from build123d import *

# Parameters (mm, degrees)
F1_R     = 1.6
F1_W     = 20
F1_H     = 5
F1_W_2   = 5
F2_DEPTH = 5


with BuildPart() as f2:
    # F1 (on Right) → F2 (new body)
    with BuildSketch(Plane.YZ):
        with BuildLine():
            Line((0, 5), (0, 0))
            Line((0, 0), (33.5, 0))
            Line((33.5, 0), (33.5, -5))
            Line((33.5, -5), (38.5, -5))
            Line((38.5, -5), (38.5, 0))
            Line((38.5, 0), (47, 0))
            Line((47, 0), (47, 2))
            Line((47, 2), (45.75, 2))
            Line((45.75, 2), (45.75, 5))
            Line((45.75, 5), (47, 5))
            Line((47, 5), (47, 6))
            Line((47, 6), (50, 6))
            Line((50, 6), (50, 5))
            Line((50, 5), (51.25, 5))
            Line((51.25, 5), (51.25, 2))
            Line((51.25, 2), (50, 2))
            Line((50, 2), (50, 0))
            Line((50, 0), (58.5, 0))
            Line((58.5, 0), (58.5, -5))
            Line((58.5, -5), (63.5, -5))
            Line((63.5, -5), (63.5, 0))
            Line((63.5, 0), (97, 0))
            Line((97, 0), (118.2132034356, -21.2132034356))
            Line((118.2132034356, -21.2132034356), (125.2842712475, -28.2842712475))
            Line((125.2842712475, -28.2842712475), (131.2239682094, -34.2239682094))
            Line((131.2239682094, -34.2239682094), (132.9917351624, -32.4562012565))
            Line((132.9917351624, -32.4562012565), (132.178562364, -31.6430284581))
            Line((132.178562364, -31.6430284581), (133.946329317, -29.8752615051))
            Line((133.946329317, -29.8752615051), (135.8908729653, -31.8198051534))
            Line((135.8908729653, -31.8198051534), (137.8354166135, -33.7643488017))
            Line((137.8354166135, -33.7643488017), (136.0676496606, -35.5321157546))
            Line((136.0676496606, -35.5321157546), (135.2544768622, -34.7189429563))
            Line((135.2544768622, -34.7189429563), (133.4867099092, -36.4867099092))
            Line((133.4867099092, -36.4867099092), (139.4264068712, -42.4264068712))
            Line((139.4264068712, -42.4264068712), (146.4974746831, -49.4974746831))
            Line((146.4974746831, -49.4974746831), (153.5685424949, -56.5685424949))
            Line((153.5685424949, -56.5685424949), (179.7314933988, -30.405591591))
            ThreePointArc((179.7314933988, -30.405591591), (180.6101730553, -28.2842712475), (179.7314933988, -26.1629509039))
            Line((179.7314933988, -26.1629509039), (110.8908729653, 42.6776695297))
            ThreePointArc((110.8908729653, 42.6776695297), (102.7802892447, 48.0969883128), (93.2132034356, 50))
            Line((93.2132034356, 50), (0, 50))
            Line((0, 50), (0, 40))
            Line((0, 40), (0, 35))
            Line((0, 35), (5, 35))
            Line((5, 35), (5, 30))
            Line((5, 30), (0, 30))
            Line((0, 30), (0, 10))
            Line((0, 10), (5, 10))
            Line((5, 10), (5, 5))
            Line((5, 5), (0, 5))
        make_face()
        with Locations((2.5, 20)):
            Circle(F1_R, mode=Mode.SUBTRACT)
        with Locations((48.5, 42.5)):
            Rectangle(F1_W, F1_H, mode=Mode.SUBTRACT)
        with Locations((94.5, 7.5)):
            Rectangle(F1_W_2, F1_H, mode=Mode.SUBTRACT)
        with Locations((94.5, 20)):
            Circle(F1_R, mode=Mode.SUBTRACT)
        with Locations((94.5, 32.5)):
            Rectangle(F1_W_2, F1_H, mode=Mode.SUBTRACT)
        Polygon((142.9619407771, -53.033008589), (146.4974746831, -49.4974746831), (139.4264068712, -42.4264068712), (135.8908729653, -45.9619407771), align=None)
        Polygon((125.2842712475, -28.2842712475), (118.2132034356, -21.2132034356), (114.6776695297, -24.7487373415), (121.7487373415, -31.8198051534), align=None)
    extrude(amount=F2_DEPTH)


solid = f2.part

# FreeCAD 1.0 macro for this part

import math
import FreeCAD as App
import Part
import Sketcher
from FreeCAD import Vector

doc = App.newDocument("Part")
body = doc.addObject("PartDesign::Body", "Body")

# Sketch on YZ plane
sketch1 = body.newObject("Sketcher::SketchObject", "Sketch")
sketch1.AttachmentSupport = (doc.getObject("YZ_Plane"), [""])
sketch1.MapMode = "FlatFace"
sketch1.addGeometry([
    Part.LineSegment(Vector(0, 5, 0), Vector(0, 0, 0)),  # 0
    Part.LineSegment(Vector(0, 0, 0), Vector(33.5, 0, 0)),  # 1
    Part.LineSegment(Vector(33.5, 0, 0), Vector(33.5, -5, 0)),  # 2
    Part.LineSegment(Vector(33.5, -5, 0), Vector(38.5, -5, 0)),  # 3
    Part.LineSegment(Vector(38.5, -5, 0), Vector(38.5, 0, 0)),  # 4
    Part.LineSegment(Vector(38.5, 0, 0), Vector(47, 0, 0)),  # 5
    Part.LineSegment(Vector(47, 0, 0), Vector(47, 2, 0)),  # 6
    Part.LineSegment(Vector(47, 2, 0), Vector(45.8, 2, 0)),  # 7
    Part.LineSegment(Vector(45.8, 2, 0), Vector(45.8, 5, 0)),  # 8
    Part.LineSegment(Vector(45.8, 5, 0), Vector(47, 5, 0)),  # 9
    Part.LineSegment(Vector(47, 5, 0), Vector(47, 6, 0)),  # 10
    Part.LineSegment(Vector(47, 6, 0), Vector(50, 6, 0)),  # 11
    Part.LineSegment(Vector(50, 6, 0), Vector(50, 5, 0)),  # 12
    Part.LineSegment(Vector(50, 5, 0), Vector(51.2, 5, 0)),  # 13
    Part.LineSegment(Vector(51.2, 5, 0), Vector(51.2, 2, 0)),  # 14
    Part.LineSegment(Vector(51.2, 2, 0), Vector(50, 2, 0)),  # 15
    Part.LineSegment(Vector(50, 2, 0), Vector(50, 0, 0)),  # 16
    Part.LineSegment(Vector(50, 0, 0), Vector(58.5, 0, 0)),  # 17
    Part.LineSegment(Vector(58.5, 0, 0), Vector(58.5, -5, 0)),  # 18
    Part.LineSegment(Vector(58.5, -5, 0), Vector(63.5, -5, 0)),  # 19
    Part.LineSegment(Vector(63.5, -5, 0), Vector(63.5, 0, 0)),  # 20
    Part.LineSegment(Vector(63.5, 0, 0), Vector(97, 0, 0)),  # 21
    Part.LineSegment(Vector(97, 0, 0), Vector(118.2, -21.2, 0)),  # 22
    Part.LineSegment(Vector(118.2, -21.2, 0), Vector(114.7, -24.7, 0)),  # 23
    Part.LineSegment(Vector(114.7, -24.7, 0), Vector(121.7, -31.8, 0)),  # 24
    Part.LineSegment(Vector(121.7, -31.8, 0), Vector(125.3, -28.3, 0)),  # 25
    Part.LineSegment(Vector(125.3, -28.3, 0), Vector(131.2, -34.2, 0)),  # 26
    Part.LineSegment(Vector(131.2, -34.2, 0), Vector(133, -32.5, 0)),  # 27
    Part.LineSegment(Vector(133, -32.5, 0), Vector(132.2, -31.6, 0)),  # 28
    Part.LineSegment(Vector(132.2, -31.6, 0), Vector(133.9, -29.9, 0)),  # 29
    Part.LineSegment(Vector(133.9, -29.9, 0), Vector(135.9, -31.8, 0)),  # 30
    Part.LineSegment(Vector(135.9, -31.8, 0), Vector(137.8, -33.8, 0)),  # 31
    Part.LineSegment(Vector(137.8, -33.8, 0), Vector(136.1, -35.5, 0)),  # 32
    Part.LineSegment(Vector(136.1, -35.5, 0), Vector(135.3, -34.7, 0)),  # 33
    Part.LineSegment(Vector(135.3, -34.7, 0), Vector(133.5, -36.5, 0)),  # 34
    Part.LineSegment(Vector(133.5, -36.5, 0), Vector(139.4, -42.4, 0)),  # 35
    Part.LineSegment(Vector(139.4, -42.4, 0), Vector(135.9, -46, 0)),  # 36
    Part.LineSegment(Vector(135.9, -46, 0), Vector(143, -53, 0)),  # 37
    Part.LineSegment(Vector(143, -53, 0), Vector(146.5, -49.5, 0)),  # 38
    Part.LineSegment(Vector(146.5, -49.5, 0), Vector(153.6, -56.6, 0)),  # 39
    Part.LineSegment(Vector(153.6, -56.6, 0), Vector(179.7, -30.4, 0)),  # 40
    Part.ArcOfCircle(Part.Circle(Vector(177.6, -28.3, 0), Vector(0, 0, 1), 3), math.radians(-45), math.radians(45)),  # 41
    Part.LineSegment(Vector(179.7, -26.2, 0), Vector(110.9, 42.7, 0)),  # 42
    Part.ArcOfCircle(Part.Circle(Vector(93.2, 25, 0), Vector(0, 0, 1), 25), math.radians(45), math.radians(90)),  # 43
    Part.LineSegment(Vector(93.2, 50, 0), Vector(0, 50, 0)),  # 44
    Part.LineSegment(Vector(0, 50, 0), Vector(0, 35, 0)),  # 45
    Part.LineSegment(Vector(0, 35, 0), Vector(5, 35, 0)),  # 46
    Part.LineSegment(Vector(5, 35, 0), Vector(5, 30, 0)),  # 47
    Part.LineSegment(Vector(5, 30, 0), Vector(0, 30, 0)),  # 48
    Part.LineSegment(Vector(0, 30, 0), Vector(0, 10, 0)),  # 49
    Part.LineSegment(Vector(0, 10, 0), Vector(5, 10, 0)),  # 50
    Part.LineSegment(Vector(5, 10, 0), Vector(5, 5, 0)),  # 51
    Part.LineSegment(Vector(5, 5, 0), Vector(0, 5, 0)),  # 52
    Part.Circle(Vector(2.5, 20, 0), Vector(0, 0, 1), 1.6),  # 53
    Part.LineSegment(Vector(97, 5, 0), Vector(92, 5, 0)),  # 54
    Part.LineSegment(Vector(92, 5, 0), Vector(92, 10, 0)),  # 55
    Part.LineSegment(Vector(92, 10, 0), Vector(97, 10, 0)),  # 56
    Part.LineSegment(Vector(97, 10, 0), Vector(97, 5, 0)),  # 57
    Part.Circle(Vector(94.5, 20, 0), Vector(0, 0, 1), 1.6),  # 58
    Part.LineSegment(Vector(58.5, 40, 0), Vector(38.5, 40, 0)),  # 59
    Part.LineSegment(Vector(38.5, 40, 0), Vector(38.5, 45, 0)),  # 60
    Part.LineSegment(Vector(38.5, 45, 0), Vector(58.5, 45, 0)),  # 61
    Part.LineSegment(Vector(58.5, 45, 0), Vector(58.5, 40, 0)),  # 62
    Part.LineSegment(Vector(97, 30, 0), Vector(92, 30, 0)),  # 63
    Part.LineSegment(Vector(92, 30, 0), Vector(92, 35, 0)),  # 64
    Part.LineSegment(Vector(92, 35, 0), Vector(97, 35, 0)),  # 65
    Part.LineSegment(Vector(97, 35, 0), Vector(97, 30, 0)),  # 66
], False)
sketch1.addConstraint([
    Sketcher.Constraint("Coincident", 0, 2, 1, 1),
    Sketcher.Constraint("Coincident", 1, 2, 2, 1),
    Sketcher.Constraint("Coincident", 2, 2, 3, 1),
    Sketcher.Constraint("Coincident", 3, 2, 4, 1),
    Sketcher.Constraint("Coincident", 4, 2, 5, 1),
    Sketcher.Constraint("Coincident", 5, 2, 6, 1),
    Sketcher.Constraint("Coincident", 6, 2, 7, 1),
    Sketcher.Constraint("Coincident", 7, 2, 8, 1),
    Sketcher.Constraint("Coincident", 8, 2, 9, 1),
    Sketcher.Constraint("Coincident", 9, 2, 10, 1),
    Sketcher.Constraint("Coincident", 10, 2, 11, 1),
    Sketcher.Constraint("Coincident", 11, 2, 12, 1),
    Sketcher.Constraint("Coincident", 12, 2, 13, 1),
    Sketcher.Constraint("Coincident", 13, 2, 14, 1),
    Sketcher.Constraint("Coincident", 14, 2, 15, 1),
    Sketcher.Constraint("Coincident", 15, 2, 16, 1),
    Sketcher.Constraint("Coincident", 16, 2, 17, 1),
    Sketcher.Constraint("Coincident", 17, 2, 18, 1),
    Sketcher.Constraint("Coincident", 18, 2, 19, 1),
    Sketcher.Constraint("Coincident", 19, 2, 20, 1),
    Sketcher.Constraint("Coincident", 20, 2, 21, 1),
    Sketcher.Constraint("Coincident", 21, 2, 22, 1),
    Sketcher.Constraint("Coincident", 22, 2, 23, 1),
    Sketcher.Constraint("Coincident", 23, 2, 24, 1),
    Sketcher.Constraint("Coincident", 24, 2, 25, 1),
    Sketcher.Constraint("Coincident", 25, 2, 26, 1),
    Sketcher.Constraint("Coincident", 26, 2, 27, 1),
    Sketcher.Constraint("Coincident", 27, 2, 28, 1),
    Sketcher.Constraint("Coincident", 28, 2, 29, 1),
    Sketcher.Constraint("Coincident", 29, 2, 30, 1),
    Sketcher.Constraint("Coincident", 30, 2, 31, 1),
    Sketcher.Constraint("Coincident", 31, 2, 32, 1),
    Sketcher.Constraint("Coincident", 32, 2, 33, 1),
    Sketcher.Constraint("Coincident", 33, 2, 34, 1),
    Sketcher.Constraint("Coincident", 34, 2, 35, 1),
    Sketcher.Constraint("Coincident", 35, 2, 36, 1),
    Sketcher.Constraint("Coincident", 36, 2, 37, 1),
    Sketcher.Constraint("Coincident", 37, 2, 38, 1),
    Sketcher.Constraint("Coincident", 38, 2, 39, 1),
    Sketcher.Constraint("Coincident", 39, 2, 40, 1),
    Sketcher.Constraint("Tangent", 40, 2, 41, 1),
    Sketcher.Constraint("Tangent", 41, 2, 42, 1),
    Sketcher.Constraint("Tangent", 42, 2, 43, 1),
    Sketcher.Constraint("Tangent", 43, 2, 44, 1),
    Sketcher.Constraint("Coincident", 44, 2, 45, 1),
    Sketcher.Constraint("Coincident", 45, 2, 46, 1),
    Sketcher.Constraint("Coincident", 46, 2, 47, 1),
    Sketcher.Constraint("Coincident", 47, 2, 48, 1),
    Sketcher.Constraint("Coincident", 48, 2, 49, 1),
    Sketcher.Constraint("Coincident", 49, 2, 50, 1),
    Sketcher.Constraint("Coincident", 50, 2, 51, 1),
    Sketcher.Constraint("Coincident", 51, 2, 52, 1),
    Sketcher.Constraint("Coincident", 52, 2, 0, 1),
    Sketcher.Constraint("Coincident", 54, 2, 55, 1),
    Sketcher.Constraint("Coincident", 55, 2, 56, 1),
    Sketcher.Constraint("Coincident", 56, 2, 57, 1),
    Sketcher.Constraint("Coincident", 57, 2, 54, 1),
    Sketcher.Constraint("Coincident", 59, 2, 60, 1),
    Sketcher.Constraint("Coincident", 60, 2, 61, 1),
    Sketcher.Constraint("Coincident", 61, 2, 62, 1),
    Sketcher.Constraint("Coincident", 62, 2, 59, 1),
    Sketcher.Constraint("Coincident", 63, 2, 64, 1),
    Sketcher.Constraint("Coincident", 64, 2, 65, 1),
    Sketcher.Constraint("Coincident", 65, 2, 66, 1),
    Sketcher.Constraint("Coincident", 66, 2, 63, 1),
    Sketcher.Constraint("Vertical", 0),
    Sketcher.Constraint("Horizontal", 1),
    Sketcher.Constraint("Vertical", 2),
    Sketcher.Constraint("Horizontal", 3),
    Sketcher.Constraint("Vertical", 4),
    Sketcher.Constraint("Horizontal", 5),
    Sketcher.Constraint("Vertical", 6),
    Sketcher.Constraint("Horizontal", 7),
    Sketcher.Constraint("Vertical", 8),
    Sketcher.Constraint("Horizontal", 9),
    Sketcher.Constraint("Vertical", 10),
    Sketcher.Constraint("Horizontal", 11),
    Sketcher.Constraint("Vertical", 12),
    Sketcher.Constraint("Horizontal", 13),
    Sketcher.Constraint("Vertical", 14),
    Sketcher.Constraint("Horizontal", 15),
    Sketcher.Constraint("Vertical", 16),
    Sketcher.Constraint("Horizontal", 17),
    Sketcher.Constraint("Vertical", 18),
    Sketcher.Constraint("Horizontal", 19),
    Sketcher.Constraint("Vertical", 20),
    Sketcher.Constraint("Horizontal", 21),
    Sketcher.Constraint("Horizontal", 44),
    Sketcher.Constraint("Vertical", 45),
    Sketcher.Constraint("Horizontal", 46),
    Sketcher.Constraint("Vertical", 47),
    Sketcher.Constraint("Horizontal", 48),
    Sketcher.Constraint("Vertical", 49),
    Sketcher.Constraint("Horizontal", 50),
    Sketcher.Constraint("Vertical", 51),
    Sketcher.Constraint("Horizontal", 52),
    Sketcher.Constraint("Horizontal", 54),
    Sketcher.Constraint("Vertical", 55),
    Sketcher.Constraint("Horizontal", 56),
    Sketcher.Constraint("Vertical", 57),
    Sketcher.Constraint("Horizontal", 59),
    Sketcher.Constraint("Vertical", 60),
    Sketcher.Constraint("Horizontal", 61),
    Sketcher.Constraint("Vertical", 62),
    Sketcher.Constraint("Horizontal", 63),
    Sketcher.Constraint("Vertical", 64),
    Sketcher.Constraint("Horizontal", 65),
    Sketcher.Constraint("Vertical", 66),
    Sketcher.Constraint("Coincident", 0, 2, -1, 1),
    Sketcher.Constraint("Equal", 53, 58),
    Sketcher.Constraint("PointOnObject", 4, 2, -1),
    Sketcher.Constraint("PointOnObject", 16, 2, -1),
    Sketcher.Constraint("PointOnObject", 20, 2, -1),
    Sketcher.Constraint("PointOnObject", 44, 2, -2),
    Sketcher.Constraint("PointOnObject", 48, 2, -2),
    Sketcher.Constraint("Perpendicular", 22, 23),
    Sketcher.Constraint("Perpendicular", 23, 24),
    Sketcher.Constraint("Perpendicular", 24, 25),
    Sketcher.Constraint("Perpendicular", 25, 26),
    Sketcher.Constraint("Perpendicular", 26, 27),
    Sketcher.Constraint("Perpendicular", 27, 28),
    Sketcher.Constraint("Perpendicular", 28, 29),
    Sketcher.Constraint("Perpendicular", 29, 30),
    Sketcher.Constraint("Parallel", 30, 31),
    Sketcher.Constraint("Perpendicular", 31, 32),
    Sketcher.Constraint("Perpendicular", 32, 33),
    Sketcher.Constraint("Perpendicular", 33, 34),
    Sketcher.Constraint("Perpendicular", 34, 35),
    Sketcher.Constraint("Perpendicular", 35, 36),
    Sketcher.Constraint("Perpendicular", 36, 37),
    Sketcher.Constraint("Perpendicular", 37, 38),
    Sketcher.Constraint("Perpendicular", 38, 39),
    Sketcher.Constraint("Perpendicular", 39, 40),
    Sketcher.Constraint("Perpendicular", 40, 42),
    Sketcher.Constraint("Horizontal", 53, 3, 58, 3),
    Sketcher.Constraint("Horizontal", 9, 2, 12, 2),
    Sketcher.Constraint("Horizontal", 7, 2, 14, 2),
    Sketcher.Constraint("Horizontal", 3, 2, 18, 2),
    Sketcher.Constraint("Horizontal", 41, 3, 25, 2),
    Sketcher.Constraint("Horizontal", 24, 2, 30, 2),
    Sketcher.Constraint("Horizontal", 13, 2, 51, 2),
    Sketcher.Constraint("Horizontal", 52, 2, 54, 2),
    Sketcher.Constraint("Horizontal", 50, 2, 55, 2),
    Sketcher.Constraint("Horizontal", 48, 2, 63, 2),
    Sketcher.Constraint("Horizontal", 46, 2, 64, 2),
    Sketcher.Constraint("Vertical", 6, 2, 9, 2),
    Sketcher.Constraint("Vertical", 12, 2, 15, 2),
    Sketcher.Constraint("Vertical", 30, 2, 36, 2),
    Sketcher.Constraint("Vertical", 40, 2, 41, 2),
    Sketcher.Constraint("Vertical", 47, 2, 50, 2),
    Sketcher.Constraint("Vertical", 21, 2, 56, 2),
    Sketcher.Constraint("Vertical", 4, 2, 59, 2),
    Sketcher.Constraint("Vertical", 18, 2, 61, 2),
    Sketcher.Constraint("Vertical", 55, 2, 63, 2),
    Sketcher.Constraint("Vertical", 57, 2, 65, 2),
    Sketcher.Constraint("Equal", 9, 13),
    Sketcher.Constraint("Equal", 5, 17),
    Sketcher.Constraint("Equal", 3, 19),
    Sketcher.Constraint("Equal", 1, 21),
    Sketcher.Constraint("Equal", 19, 46),
    Sketcher.Constraint("Equal", 52, 54),
    Sketcher.Constraint("Equal", 65, 0),
    Sketcher.Constraint("Equal", 0, 2),
    Sketcher.Constraint("Equal", 11, 8),
    Sketcher.Constraint("Equal", 20, 47),
    Sketcher.Constraint("Equal", 61, 49),
    Sketcher.Constraint("Equal", 47, 51),
    Sketcher.Constraint("Equal", 57, 60),
    Sketcher.Constraint("Equal", 23, 25),
    Sketcher.Constraint("Equal", 27, 29),
    Sketcher.Constraint("Equal", 30, 31),
    Sketcher.Constraint("Equal", 29, 32),
    Sketcher.Constraint("Equal", 28, 33),
    Sketcher.Constraint("Equal", 32, 34),
    Sketcher.Constraint("Equal", 26, 35),
    Sketcher.Constraint("Equal", 24, 37),
    Sketcher.Constraint("Equal", 36, 38),
    Sketcher.Constraint("Equal", 37, 39),
    Sketcher.Constraint("Radius", 41, 3.0),
    Sketcher.Constraint("Radius", 43, 25.0),
    Sketcher.Constraint("Diameter", 53, 3.2),
    Sketcher.Constraint("DistanceX", 3, 1, 3, 2, 5.0),
    Sketcher.Constraint("DistanceX", 11, 1, 11, 2, 3.0),
    Sketcher.Constraint("DistanceX", 59, 2, 59, 1, 20.0),
    Sketcher.Constraint("DistanceY", 10, 1, 10, 2, 1.0),
    Sketcher.Constraint("DistanceY", 45, 2, 45, 1, 15.0),
    Sketcher.Constraint("Distance", 22, 30.0),
    Sketcher.Constraint("Distance", 23, 5.0),
    Sketcher.Constraint("Distance", 24, 10.0),
    Sketcher.Constraint("Distance", 40, 37.0),
    Sketcher.Constraint("DistanceX", 1, 1, 1, 2, 33.5),
    Sketcher.Constraint("DistanceY", -1, 1, 53, 3, 20.0),
    Sketcher.Constraint("DistanceY", -1, 1, 59, 2, 40.0),
    Sketcher.Constraint("Distance", 26, 8.4),
    Sketcher.Constraint("DistanceX", 7, 2, 7, 1, 1.25),
    Sketcher.Constraint("DistanceX", -1, 1, 53, 3, 2.5),
    Sketcher.Constraint("DistanceX", -1, 1, 58, 3, 94.5),
    Sketcher.Constraint("Distance", 28, 1.15),
])
pad1 = body.newObject("PartDesign::Pad", "Pad")
pad1.Profile = sketch1
pad1.Length = 5

doc.recompute()
